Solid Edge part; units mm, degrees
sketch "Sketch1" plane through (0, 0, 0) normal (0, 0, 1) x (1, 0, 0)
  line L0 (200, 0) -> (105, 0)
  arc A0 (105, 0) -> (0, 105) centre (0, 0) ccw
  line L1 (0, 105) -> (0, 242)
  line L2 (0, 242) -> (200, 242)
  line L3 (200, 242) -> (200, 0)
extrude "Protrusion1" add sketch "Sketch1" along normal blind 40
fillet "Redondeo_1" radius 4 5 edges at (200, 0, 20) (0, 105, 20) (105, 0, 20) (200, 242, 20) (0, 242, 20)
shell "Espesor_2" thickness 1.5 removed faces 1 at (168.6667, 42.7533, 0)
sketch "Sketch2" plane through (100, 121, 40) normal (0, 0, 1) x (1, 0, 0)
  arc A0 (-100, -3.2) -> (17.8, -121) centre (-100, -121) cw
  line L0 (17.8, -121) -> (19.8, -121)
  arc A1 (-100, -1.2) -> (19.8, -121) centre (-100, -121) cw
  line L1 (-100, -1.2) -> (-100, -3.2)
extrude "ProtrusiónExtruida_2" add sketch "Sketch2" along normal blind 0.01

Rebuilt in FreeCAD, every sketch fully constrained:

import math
import FreeCAD as App
import Part
import Sketcher

V = App.Vector


def edges_at(feature, points):
    """Names of the edges that pass closest to the given points."""
    edges = feature.Shape.Edges
    near = lambda p: min(range(len(edges)), key=lambda i: edges[i].distToShape(Part.Vertex(*p))[0])
    return sorted({f"Edge{near(p) + 1}" for p in points})


def faces_at(feature, points):
    """Names of the faces that lie closest to the given points."""
    faces = feature.Shape.Faces
    near = lambda p: min(range(len(faces)), key=lambda i: faces[i].distToShape(Part.Vertex(*p))[0])
    return sorted({f"Face{near(p) + 1}" for p in points})

doc = App.newDocument("Part")
body = doc.addObject("PartDesign::Body", "Body")

sketch1 = body.newObject("Sketcher::SketchObject", "Sketch")
sketch1.AttachmentSupport = (doc.getObject("XY_Plane"), [""])
sketch1.MapMode = "FlatFace"
sketch1.addGeometry(Part.LineSegment(V(105, 0, 0), V(200, 0, 0)), False)
sketch1.addGeometry(Part.LineSegment(V(200, 0, 0), V(200, 242, 0)), False)
sketch1.addGeometry(Part.LineSegment(V(200, 242, 0), V(0, 242, 0)), False)
sketch1.addGeometry(Part.LineSegment(V(0, 242, 0), V(0, 105, 0)), False)
sketch1.addGeometry(Part.ArcOfCircle(Part.Circle(V(0, 0, 0), V(0, 0, 1), 105), math.radians(0), math.radians(90)), False)
sketch1.addConstraint(Sketcher.Constraint("Coincident", 0, 2, 1, 1))
sketch1.addConstraint(Sketcher.Constraint("Coincident", 1, 2, 2, 1))
sketch1.addConstraint(Sketcher.Constraint("Coincident", 2, 2, 3, 1))
sketch1.addConstraint(Sketcher.Constraint("Coincident", 3, 2, 4, 2))
sketch1.addConstraint(Sketcher.Constraint("Coincident", 4, 1, 0, 1))
sketch1.addConstraint(Sketcher.Constraint("Horizontal", 0))
sketch1.addConstraint(Sketcher.Constraint("Vertical", 1))
sketch1.addConstraint(Sketcher.Constraint("Horizontal", 2))
sketch1.addConstraint(Sketcher.Constraint("Vertical", 3))
sketch1.addConstraint(Sketcher.Constraint("Coincident", 4, 3, -1, 1))
sketch1.addConstraint(Sketcher.Constraint("PointOnObject", 0, 2, -1))
sketch1.addConstraint(Sketcher.Constraint("PointOnObject", 2, 2, -2))
sketch1.addConstraint(Sketcher.Constraint("Radius", 4, 105.0))
sketch1.addConstraint(Sketcher.Constraint("DistanceX", 0, 1, 0, 2, 95.0))
sketch1.addConstraint(Sketcher.Constraint("DistanceY", 1, 1, 1, 2, 242.0))
pad1 = body.newObject("PartDesign::Pad", "Pad")
pad1.Profile = sketch1
pad1.Length = 40
doc.recompute()

fillet = body.newObject("PartDesign::Fillet", "Fillet")
fillet.Base = (pad1, edges_at(pad1, [
    (200, 0, 20),
    (0, 105, 20),
    (105, 0, 20),
    (200, 242, 20),
    (0, 242, 20),
]))
fillet.Radius = 4
doc.recompute()

thickness = body.newObject("PartDesign::Thickness", "Thickness")
thickness.Base = (fillet, faces_at(fillet, [(168.667, 42.753, 0)]))
thickness.Value = 1.5
thickness.Reversed = True
thickness.Join = "Intersection"

sketch2 = body.newObject("Sketcher::SketchObject", "Sketch001")
sketch2.AttachmentSupport = (doc.getObject("XY_Plane"), [""])
sketch2.MapMode = "FlatFace"
sketch2.AttachmentOffset = App.Placement(V(0, 0, 40), App.Rotation())
sketch2.addGeometry(Part.LineSegment(V(0, 119.8, 0), V(0, 117.8, 0)), False)
sketch2.addGeometry(Part.ArcOfCircle(Part.Circle(V(0, 0, 0), V(0, 0, 1), 117.8), math.radians(0), math.radians(90)), False)
sketch2.addGeometry(Part.LineSegment(V(117.8, 0, 0), V(119.8, 0, 0)), False)
sketch2.addGeometry(Part.ArcOfCircle(Part.Circle(V(0, 0, 0), V(0, 0, 1), 119.8), math.radians(0), math.radians(90)), False)
sketch2.addConstraint(Sketcher.Constraint("Coincident", 0, 2, 1, 2))
sketch2.addConstraint(Sketcher.Constraint("Coincident", 1, 1, 2, 1))
sketch2.addConstraint(Sketcher.Constraint("Coincident", 2, 2, 3, 1))
sketch2.addConstraint(Sketcher.Constraint("Coincident", 3, 2, 0, 1))
sketch2.addConstraint(Sketcher.Constraint("Vertical", 0))
sketch2.addConstraint(Sketcher.Constraint("Horizontal", 2))
sketch2.addConstraint(Sketcher.Constraint("Coincident", 1, 3, -1, 1))
sketch2.addConstraint(Sketcher.Constraint("Coincident", 3, 3, -1, 1))
sketch2.addConstraint(Sketcher.Constraint("PointOnObject", 0, 2, -2))
sketch2.addConstraint(Sketcher.Constraint("PointOnObject", 1, 1, -1))
sketch2.addConstraint(Sketcher.Constraint("Radius", 1, 117.8))
sketch2.addConstraint(Sketcher.Constraint("Radius", 3, 119.8))
pad2 = body.newObject("PartDesign::Pad", "Pad001")
pad2.Profile = sketch2
pad2.Length = 0.01

doc.recompute()
